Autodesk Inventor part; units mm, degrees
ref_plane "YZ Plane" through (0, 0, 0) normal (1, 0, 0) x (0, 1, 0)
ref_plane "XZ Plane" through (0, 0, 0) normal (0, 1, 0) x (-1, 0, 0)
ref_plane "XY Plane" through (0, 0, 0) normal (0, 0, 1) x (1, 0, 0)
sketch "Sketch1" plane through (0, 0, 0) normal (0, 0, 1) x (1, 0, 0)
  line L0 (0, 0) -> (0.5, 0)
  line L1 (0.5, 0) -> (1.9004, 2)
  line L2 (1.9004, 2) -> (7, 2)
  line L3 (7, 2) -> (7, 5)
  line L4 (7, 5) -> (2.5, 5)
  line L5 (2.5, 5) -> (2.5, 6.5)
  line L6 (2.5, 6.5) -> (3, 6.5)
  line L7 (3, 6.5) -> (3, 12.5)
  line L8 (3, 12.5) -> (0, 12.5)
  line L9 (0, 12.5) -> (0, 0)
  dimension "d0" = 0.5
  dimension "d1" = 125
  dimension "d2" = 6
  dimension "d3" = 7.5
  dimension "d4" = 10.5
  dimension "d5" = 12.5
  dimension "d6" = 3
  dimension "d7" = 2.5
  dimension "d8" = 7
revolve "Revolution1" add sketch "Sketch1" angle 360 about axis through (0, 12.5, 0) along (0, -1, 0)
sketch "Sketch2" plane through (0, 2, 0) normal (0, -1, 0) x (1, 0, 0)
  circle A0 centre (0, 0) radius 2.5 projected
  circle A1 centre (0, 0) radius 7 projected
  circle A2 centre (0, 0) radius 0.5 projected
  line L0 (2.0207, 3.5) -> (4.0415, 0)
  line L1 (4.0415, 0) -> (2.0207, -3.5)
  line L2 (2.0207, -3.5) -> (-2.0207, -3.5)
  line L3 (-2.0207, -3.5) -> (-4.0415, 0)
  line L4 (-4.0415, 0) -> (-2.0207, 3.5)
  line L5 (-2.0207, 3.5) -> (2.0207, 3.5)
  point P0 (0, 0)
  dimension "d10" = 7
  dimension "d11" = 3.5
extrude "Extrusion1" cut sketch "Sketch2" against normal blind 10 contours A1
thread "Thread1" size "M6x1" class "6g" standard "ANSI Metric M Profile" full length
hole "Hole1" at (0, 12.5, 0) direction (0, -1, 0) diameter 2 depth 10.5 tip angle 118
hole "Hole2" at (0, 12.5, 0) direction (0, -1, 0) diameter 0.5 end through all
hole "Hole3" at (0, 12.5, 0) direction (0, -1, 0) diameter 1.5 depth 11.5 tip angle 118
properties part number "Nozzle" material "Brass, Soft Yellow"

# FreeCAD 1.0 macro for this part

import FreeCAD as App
import Part
import Sketcher
Q = App.Units.Quantity


def add_polygon(sketch, points):
    """Adds a closed chain of lines whose ends are joined by coincident constraints."""
    first, n = sketch.GeometryCount, len(points)
    for a, b in zip(points, points[1:] + points[:1]):
        sketch.addGeometry(Part.LineSegment(App.Vector(*a, 0), App.Vector(*b, 0)), False)
    for i in range(n):
        sketch.addConstraint(Sketcher.Constraint("Coincident", first + i, 2, first + (i + 1) % n, 1))

doc = App.newDocument("Part")
body = doc.addObject("PartDesign::Body", "Body")

sketch1 = doc.addObject("Sketcher::SketchObject", "Sketch")
body.addObject(sketch1)
sketch1.AttachmentSupport = (doc.XY_Plane, [""])
sketch1.MapMode = "FlatFace"
add_polygon(sketch1, [(0, 12.5), (0, 0), (0.5, 0), (1.9, 2), (7, 2), (7, 5), (2.5, 5), (2.5, 6.5), (3, 6.5), (3, 12.5)])
sketch1.addConstraint([
    Sketcher.Constraint("Vertical", 0),
    Sketcher.Constraint("Horizontal", 1),
    Sketcher.Constraint("Horizontal", 3),
    Sketcher.Constraint("Vertical", 4),
    Sketcher.Constraint("Horizontal", 5),
    Sketcher.Constraint("Vertical", 6),
    Sketcher.Constraint("Horizontal", 7),
    Sketcher.Constraint("Vertical", 8),
    Sketcher.Constraint("Horizontal", 9),
    Sketcher.Constraint("Coincident", 0, 2, -1, 1),
    Sketcher.Constraint("Equal", 1, 7),
    Sketcher.Constraint("Equal", 9, 4),
    Sketcher.Constraint("DistanceX", 9, 2, 9, 1, Q("3 mm")),
    Sketcher.Constraint("DistanceY", 8, 1, 8, 2, Q("6 mm")),
    Sketcher.Constraint("DistanceX", 1, 1, 1, 2, Q("0.5 mm")),
    Sketcher.Constraint("DistanceY", 0, 2, 0, 1, Q("12.5 mm")),
    Sketcher.Constraint("DistanceX", -1, 1, 3, 2, Q("7 mm")),
    Sketcher.Constraint("DistanceY", 5, 2, 8, 2, Q("7.5 mm")),
    Sketcher.Constraint("Angle", 2, Q("55.0003 deg")),
])
revolution = doc.addObject("PartDesign::Revolution", "Revolution")
body.addObject(revolution)
revolution.Profile = sketch1
revolution.ReferenceAxis = (sketch1, ["V_Axis"])
revolution.Angle = 360

sketch2 = doc.addObject("Sketcher::SketchObject", "Sketch001")
body.addObject(sketch2)
sketch2.AttachmentSupport = (doc.XZ_Plane, [""])
sketch2.MapMode = "FlatFace"
sketch2.AttachmentOffset = App.Placement(App.Vector(0, 0, -2), App.Rotation())
sketch2.addGeometry(Part.Circle(App.Vector(0, 0, 0), App.Vector(0, 0, 1), 7), False)
add_polygon(sketch2, [(-2, 3.5), (2, 3.5), (4, 0), (2, -3.5), (-2, -3.5), (-4, 0)])
sketch2.addConstraint([
    Sketcher.Constraint("Horizontal", 1),
    Sketcher.Constraint("Horizontal", 4),
    Sketcher.Constraint("Coincident", 0, 3, -1, 1),
    Sketcher.Constraint("Symmetric", 1, 2, 4, 2, -1, 1),
    Sketcher.Constraint("Symmetric", 2, 2, 5, 2, -1, 1),
    Sketcher.Constraint("PointOnObject", 2, 2, -1),
    Sketcher.Constraint("Parallel", 3, 6),
    Sketcher.Constraint("Vertical", 1, 2, 3, 2),
    Sketcher.Constraint("Diameter", 0, Q("14 mm")),
    Sketcher.Constraint("DistanceY", 3, 2, 1, 2, Q("7 mm")),
    Sketcher.Constraint("Angle", 2, Q("-59.999 deg")),
    Sketcher.Constraint("DistanceX", 1, 1, 1, 2, Q("4.0414 mm")),
])
pocket1 = doc.addObject("PartDesign::Pocket", "Pocket")
body.addObject(pocket1)
pocket1.Profile = sketch2
pocket1.Length = 10

sketch3 = doc.addObject("Sketcher::SketchObject", "Sketch002")
body.addObject(sketch3)
sketch3.AttachmentSupport = (doc.XZ_Plane, [""])
sketch3.MapMode = "FlatFace"
sketch3.AttachmentOffset = App.Placement(App.Vector(0, 0, -12.5), App.Rotation())
sketch3.addGeometry(Part.Circle(App.Vector(0, 0, 0), App.Vector(0, 0, 1), 1), False)
sketch3.addConstraint([
    Sketcher.Constraint("Coincident", 0, 3, -1, 1),
    Sketcher.Constraint("Diameter", 0, Q("2 mm")),
])
doc.recompute()
hole = doc.addObject("PartDesign::Hole", "Hole")
body.addObject(hole)
hole.Profile = sketch3
hole.ThreadType = "None"
hole.Diameter = 2
hole.DepthType = "Dimension"
hole.Depth = 10.5
hole.DrillPoint = "Angled"
hole.DrillPointAngle = 118
hole.Reversed = True

sketch4 = doc.addObject("Sketcher::SketchObject", "Sketch003")
body.addObject(sketch4)
sketch4.AttachmentSupport = (doc.XZ_Plane, [""])
sketch4.MapMode = "FlatFace"
sketch4.AttachmentOffset = App.Placement(App.Vector(0, 0, -12.5), App.Rotation())
sketch4.addGeometry(Part.Circle(App.Vector(0, 0, 0), App.Vector(0, 0, 1), 0.25), False)
sketch4.addConstraint([
    Sketcher.Constraint("Coincident", 0, 3, -1, 1),
    Sketcher.Constraint("Diameter", 0, Q("0.5 mm")),
])
doc.recompute()
hole2 = doc.addObject("PartDesign::Hole", "Hole001")
body.addObject(hole2)
hole2.Profile = sketch4
hole2.ThreadType = "None"
hole2.Diameter = 0.5
hole2.DepthType = "ThroughAll"
hole2.Reversed = True

sketch5 = doc.addObject("Sketcher::SketchObject", "Sketch004")
body.addObject(sketch5)
sketch5.AttachmentSupport = (doc.XZ_Plane, [""])
sketch5.MapMode = "FlatFace"
sketch5.AttachmentOffset = App.Placement(App.Vector(0, 0, -12.5), App.Rotation())
sketch5.addGeometry(Part.Circle(App.Vector(0, 0, 0), App.Vector(0, 0, 1), 0.8), False)
sketch5.addConstraint([
    Sketcher.Constraint("Coincident", 0, 3, -1, 1),
    Sketcher.Constraint("Diameter", 0, Q("1.5 mm")),
])
doc.recompute()
hole3 = doc.addObject("PartDesign::Hole", "Hole002")
body.addObject(hole3)
hole3.Profile = sketch5
hole3.ThreadType = "None"
hole3.Diameter = 1.5
hole3.DepthType = "Dimension"
hole3.Depth = 11.5
hole3.DrillPoint = "Angled"
hole3.DrillPointAngle = 118
hole3.Reversed = True

doc.recompute()
